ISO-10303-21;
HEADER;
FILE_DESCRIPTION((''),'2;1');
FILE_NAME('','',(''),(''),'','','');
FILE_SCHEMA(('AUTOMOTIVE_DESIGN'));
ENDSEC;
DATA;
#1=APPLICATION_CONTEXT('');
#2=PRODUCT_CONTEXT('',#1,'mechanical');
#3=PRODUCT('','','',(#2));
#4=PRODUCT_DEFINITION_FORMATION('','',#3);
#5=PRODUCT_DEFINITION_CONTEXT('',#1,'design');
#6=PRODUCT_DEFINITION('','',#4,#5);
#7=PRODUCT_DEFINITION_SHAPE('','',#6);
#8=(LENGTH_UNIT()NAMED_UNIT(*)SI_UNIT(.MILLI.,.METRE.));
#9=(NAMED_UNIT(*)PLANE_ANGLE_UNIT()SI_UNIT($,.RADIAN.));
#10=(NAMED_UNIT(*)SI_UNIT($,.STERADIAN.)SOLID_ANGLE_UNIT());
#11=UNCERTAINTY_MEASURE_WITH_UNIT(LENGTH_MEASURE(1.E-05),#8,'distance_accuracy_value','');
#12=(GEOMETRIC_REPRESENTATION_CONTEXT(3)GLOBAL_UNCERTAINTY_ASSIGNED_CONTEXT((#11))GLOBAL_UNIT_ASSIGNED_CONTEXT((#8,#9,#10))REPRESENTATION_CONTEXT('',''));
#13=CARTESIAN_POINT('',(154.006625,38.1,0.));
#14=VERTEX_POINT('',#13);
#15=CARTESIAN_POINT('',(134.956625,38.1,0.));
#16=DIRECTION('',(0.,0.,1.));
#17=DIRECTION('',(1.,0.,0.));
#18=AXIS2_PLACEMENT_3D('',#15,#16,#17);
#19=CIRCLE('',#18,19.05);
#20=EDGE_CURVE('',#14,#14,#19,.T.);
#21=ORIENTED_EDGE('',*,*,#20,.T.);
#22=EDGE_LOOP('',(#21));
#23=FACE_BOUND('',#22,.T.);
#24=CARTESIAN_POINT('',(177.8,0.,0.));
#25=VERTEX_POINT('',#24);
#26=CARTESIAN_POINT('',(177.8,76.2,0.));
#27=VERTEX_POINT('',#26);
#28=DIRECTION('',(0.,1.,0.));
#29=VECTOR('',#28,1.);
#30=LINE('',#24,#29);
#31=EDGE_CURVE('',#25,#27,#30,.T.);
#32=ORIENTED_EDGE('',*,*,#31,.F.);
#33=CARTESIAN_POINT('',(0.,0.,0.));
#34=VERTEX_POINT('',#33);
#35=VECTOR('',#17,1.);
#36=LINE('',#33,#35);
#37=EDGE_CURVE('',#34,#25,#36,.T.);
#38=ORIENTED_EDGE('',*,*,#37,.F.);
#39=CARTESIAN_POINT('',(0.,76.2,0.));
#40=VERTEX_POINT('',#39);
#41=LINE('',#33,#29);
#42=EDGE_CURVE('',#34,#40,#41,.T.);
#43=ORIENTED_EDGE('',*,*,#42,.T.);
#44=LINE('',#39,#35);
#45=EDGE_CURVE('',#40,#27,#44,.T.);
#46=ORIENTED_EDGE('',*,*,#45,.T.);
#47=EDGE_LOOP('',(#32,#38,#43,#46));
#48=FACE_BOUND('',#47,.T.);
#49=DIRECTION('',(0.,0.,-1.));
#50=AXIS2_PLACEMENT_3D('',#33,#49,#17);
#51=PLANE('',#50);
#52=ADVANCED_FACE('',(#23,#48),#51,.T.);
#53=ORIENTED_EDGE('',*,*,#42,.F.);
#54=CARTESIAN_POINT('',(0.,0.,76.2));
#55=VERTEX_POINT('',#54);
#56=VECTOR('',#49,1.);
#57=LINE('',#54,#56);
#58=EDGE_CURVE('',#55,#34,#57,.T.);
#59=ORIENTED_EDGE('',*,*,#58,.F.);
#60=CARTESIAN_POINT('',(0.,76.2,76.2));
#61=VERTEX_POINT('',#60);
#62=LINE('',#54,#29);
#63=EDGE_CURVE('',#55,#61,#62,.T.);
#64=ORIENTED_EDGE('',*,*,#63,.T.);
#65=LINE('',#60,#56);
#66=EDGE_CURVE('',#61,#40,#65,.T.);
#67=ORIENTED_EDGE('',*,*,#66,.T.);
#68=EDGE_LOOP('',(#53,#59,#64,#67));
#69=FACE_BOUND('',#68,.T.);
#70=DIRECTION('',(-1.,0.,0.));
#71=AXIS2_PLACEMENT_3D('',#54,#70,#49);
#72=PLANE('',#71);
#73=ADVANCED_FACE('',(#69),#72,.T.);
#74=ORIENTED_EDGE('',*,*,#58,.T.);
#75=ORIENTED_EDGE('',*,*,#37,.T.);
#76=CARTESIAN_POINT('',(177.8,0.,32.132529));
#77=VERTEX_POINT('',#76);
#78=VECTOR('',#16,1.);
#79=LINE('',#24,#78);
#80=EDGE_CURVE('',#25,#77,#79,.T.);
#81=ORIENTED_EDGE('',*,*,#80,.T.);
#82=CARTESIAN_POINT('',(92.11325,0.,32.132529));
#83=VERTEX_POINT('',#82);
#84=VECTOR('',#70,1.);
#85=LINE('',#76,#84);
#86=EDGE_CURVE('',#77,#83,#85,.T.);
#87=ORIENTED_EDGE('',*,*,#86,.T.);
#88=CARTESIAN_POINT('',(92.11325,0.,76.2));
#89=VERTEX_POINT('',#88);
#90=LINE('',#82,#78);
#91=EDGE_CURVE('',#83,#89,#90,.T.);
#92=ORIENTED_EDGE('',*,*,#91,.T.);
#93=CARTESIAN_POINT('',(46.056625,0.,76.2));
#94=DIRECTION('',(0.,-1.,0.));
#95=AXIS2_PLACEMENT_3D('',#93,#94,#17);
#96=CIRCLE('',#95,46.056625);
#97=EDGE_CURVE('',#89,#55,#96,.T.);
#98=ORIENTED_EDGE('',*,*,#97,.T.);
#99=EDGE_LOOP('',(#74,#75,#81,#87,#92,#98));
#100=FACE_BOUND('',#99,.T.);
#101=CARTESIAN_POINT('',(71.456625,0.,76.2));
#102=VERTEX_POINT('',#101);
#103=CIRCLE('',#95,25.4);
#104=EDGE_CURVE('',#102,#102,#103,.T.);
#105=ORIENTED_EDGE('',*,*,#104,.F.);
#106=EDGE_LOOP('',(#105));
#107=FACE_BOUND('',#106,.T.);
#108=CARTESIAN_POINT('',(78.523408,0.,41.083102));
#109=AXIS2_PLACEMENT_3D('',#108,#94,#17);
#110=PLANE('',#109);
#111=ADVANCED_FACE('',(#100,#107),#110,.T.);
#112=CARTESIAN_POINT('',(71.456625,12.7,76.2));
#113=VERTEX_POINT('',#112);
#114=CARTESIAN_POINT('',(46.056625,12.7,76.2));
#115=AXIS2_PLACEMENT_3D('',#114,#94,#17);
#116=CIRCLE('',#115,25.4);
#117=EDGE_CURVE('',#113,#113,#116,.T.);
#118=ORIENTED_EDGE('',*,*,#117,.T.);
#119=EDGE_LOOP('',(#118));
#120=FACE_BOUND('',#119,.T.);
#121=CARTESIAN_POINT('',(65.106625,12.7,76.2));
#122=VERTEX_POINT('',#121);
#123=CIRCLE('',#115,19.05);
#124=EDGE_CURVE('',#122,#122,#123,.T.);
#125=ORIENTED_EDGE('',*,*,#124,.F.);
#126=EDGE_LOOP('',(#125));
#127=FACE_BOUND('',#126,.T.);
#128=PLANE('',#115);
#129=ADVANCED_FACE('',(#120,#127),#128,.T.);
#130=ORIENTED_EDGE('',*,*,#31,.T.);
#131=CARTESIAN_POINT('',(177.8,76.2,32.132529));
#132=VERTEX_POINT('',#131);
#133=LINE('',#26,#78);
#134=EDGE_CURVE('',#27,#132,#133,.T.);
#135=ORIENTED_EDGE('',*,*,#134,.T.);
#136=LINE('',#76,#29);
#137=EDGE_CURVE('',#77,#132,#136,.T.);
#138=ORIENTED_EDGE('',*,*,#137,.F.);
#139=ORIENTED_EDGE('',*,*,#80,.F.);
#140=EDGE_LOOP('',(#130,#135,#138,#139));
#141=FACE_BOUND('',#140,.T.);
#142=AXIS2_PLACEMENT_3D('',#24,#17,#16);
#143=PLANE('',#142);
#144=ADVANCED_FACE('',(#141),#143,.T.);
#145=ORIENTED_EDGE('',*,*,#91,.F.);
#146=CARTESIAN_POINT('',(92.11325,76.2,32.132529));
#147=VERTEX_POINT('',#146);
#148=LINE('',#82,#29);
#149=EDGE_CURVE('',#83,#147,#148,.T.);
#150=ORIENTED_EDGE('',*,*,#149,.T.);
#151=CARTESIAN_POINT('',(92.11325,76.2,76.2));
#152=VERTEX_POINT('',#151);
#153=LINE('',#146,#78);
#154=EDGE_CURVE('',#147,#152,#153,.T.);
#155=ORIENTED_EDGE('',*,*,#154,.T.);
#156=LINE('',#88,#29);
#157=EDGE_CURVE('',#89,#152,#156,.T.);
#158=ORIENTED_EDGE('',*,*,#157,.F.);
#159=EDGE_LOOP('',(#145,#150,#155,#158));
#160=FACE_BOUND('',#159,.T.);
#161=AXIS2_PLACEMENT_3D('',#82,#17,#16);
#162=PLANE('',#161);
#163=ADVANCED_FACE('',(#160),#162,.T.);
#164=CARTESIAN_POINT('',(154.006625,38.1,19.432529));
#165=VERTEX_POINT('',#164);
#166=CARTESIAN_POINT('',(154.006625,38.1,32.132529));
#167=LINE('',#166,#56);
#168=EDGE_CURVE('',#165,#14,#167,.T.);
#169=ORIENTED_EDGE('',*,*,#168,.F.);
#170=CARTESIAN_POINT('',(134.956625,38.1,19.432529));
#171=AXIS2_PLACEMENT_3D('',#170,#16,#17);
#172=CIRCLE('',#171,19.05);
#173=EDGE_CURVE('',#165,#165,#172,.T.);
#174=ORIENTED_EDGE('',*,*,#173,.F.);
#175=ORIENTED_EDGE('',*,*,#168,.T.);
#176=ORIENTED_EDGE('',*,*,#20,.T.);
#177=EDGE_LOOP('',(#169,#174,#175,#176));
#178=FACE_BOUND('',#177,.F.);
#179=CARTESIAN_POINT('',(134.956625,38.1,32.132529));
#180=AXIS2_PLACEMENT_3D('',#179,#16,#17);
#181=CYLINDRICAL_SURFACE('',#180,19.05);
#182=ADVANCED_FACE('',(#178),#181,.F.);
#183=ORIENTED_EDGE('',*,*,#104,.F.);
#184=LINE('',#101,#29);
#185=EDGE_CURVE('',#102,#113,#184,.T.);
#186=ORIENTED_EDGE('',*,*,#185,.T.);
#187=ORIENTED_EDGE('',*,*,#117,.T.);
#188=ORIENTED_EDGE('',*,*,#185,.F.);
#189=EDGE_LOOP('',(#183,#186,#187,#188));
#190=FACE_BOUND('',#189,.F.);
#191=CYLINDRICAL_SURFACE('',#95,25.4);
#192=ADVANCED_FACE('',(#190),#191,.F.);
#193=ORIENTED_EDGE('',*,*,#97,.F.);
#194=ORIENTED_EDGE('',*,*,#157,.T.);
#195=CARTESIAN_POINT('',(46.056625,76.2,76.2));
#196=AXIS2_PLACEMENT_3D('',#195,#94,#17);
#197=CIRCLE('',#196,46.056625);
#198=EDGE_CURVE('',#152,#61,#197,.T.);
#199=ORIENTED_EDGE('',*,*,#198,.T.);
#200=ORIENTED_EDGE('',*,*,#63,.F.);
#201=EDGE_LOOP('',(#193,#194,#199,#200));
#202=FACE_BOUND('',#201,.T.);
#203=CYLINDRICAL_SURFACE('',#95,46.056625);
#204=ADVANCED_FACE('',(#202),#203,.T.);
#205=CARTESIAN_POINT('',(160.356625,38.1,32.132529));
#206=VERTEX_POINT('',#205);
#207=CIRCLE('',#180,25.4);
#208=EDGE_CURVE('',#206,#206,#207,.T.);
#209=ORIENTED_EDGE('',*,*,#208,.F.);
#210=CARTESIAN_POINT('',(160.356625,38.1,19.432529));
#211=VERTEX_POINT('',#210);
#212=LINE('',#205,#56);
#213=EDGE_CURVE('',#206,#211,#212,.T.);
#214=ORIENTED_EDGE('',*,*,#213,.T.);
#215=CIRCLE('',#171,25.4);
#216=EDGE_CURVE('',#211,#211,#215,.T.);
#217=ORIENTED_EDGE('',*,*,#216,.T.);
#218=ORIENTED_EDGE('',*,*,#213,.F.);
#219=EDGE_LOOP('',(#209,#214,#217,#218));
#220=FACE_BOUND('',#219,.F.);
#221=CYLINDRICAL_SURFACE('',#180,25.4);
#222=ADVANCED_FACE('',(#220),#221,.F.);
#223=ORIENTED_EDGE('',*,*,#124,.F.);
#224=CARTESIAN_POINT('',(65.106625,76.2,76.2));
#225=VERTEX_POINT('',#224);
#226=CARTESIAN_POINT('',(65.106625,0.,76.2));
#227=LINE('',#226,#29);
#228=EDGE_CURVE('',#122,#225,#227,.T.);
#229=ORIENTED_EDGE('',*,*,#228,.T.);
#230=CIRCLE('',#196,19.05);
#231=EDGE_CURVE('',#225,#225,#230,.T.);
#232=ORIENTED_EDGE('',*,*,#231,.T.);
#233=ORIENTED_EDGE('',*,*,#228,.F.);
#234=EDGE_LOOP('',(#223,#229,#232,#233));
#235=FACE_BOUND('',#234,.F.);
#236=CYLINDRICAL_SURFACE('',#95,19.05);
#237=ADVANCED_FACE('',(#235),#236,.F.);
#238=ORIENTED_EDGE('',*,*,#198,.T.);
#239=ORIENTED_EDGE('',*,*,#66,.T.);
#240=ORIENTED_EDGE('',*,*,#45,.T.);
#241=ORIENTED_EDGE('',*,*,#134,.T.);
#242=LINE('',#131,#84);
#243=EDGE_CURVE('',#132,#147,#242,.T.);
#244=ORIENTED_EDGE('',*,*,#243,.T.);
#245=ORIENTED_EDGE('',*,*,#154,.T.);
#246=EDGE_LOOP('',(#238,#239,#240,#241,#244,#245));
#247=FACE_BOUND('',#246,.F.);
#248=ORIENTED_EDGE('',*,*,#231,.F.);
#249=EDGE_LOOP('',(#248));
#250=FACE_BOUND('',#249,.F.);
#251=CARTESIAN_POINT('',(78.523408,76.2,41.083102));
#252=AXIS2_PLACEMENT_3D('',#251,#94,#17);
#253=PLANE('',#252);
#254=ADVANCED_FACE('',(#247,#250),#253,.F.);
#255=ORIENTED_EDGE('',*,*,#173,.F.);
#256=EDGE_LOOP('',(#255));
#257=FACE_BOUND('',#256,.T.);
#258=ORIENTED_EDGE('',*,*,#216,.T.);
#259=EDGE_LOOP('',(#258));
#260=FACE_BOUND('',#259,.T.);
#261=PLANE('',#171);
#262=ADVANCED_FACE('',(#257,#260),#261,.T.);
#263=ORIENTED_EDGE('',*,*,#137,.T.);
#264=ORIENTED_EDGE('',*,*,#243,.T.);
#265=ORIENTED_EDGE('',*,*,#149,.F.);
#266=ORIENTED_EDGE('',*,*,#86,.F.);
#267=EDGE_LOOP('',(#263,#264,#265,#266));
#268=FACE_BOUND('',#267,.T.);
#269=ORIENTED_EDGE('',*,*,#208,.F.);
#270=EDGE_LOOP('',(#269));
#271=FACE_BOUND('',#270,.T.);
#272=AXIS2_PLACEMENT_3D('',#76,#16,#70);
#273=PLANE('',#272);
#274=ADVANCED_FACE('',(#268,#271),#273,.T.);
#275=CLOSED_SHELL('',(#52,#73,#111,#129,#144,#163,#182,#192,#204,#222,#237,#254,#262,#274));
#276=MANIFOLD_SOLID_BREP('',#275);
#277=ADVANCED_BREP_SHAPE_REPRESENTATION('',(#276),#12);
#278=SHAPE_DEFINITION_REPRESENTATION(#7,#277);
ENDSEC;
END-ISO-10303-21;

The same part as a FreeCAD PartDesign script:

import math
import FreeCAD as App
import Part
import Sketcher
from FreeCAD import Vector
Q = App.Units.Quantity

doc = App.newDocument("Part")
body = doc.addObject("PartDesign::Body", "Body")

sketch1 = doc.addObject("Sketcher::SketchObject", "Sketch")
body.addObject(sketch1)
sketch1.AttachmentSupport = (doc.XZ_Plane, [""])
sketch1.MapMode = "FlatFace"
sketch1.addGeometry([
    Part.LineSegment(Vector(0, 76, 0), Vector(0, 0, 0)),
    Part.LineSegment(Vector(0, 0, 0), Vector(178, 0, 0)),
    Part.LineSegment(Vector(178, 0, 0), Vector(178, 32, 0)),
    Part.LineSegment(Vector(178, 32, 0), Vector(92, 32, 0)),
    Part.LineSegment(Vector(92, 32, 0), Vector(92, 76, 0)),
    Part.ArcOfCircle(Part.Circle(Vector(46, 76, 0), Vector(0, 0, 1), 46), math.radians(0), math.radians(180)),
    Part.Circle(Vector(46, 76, 0), Vector(0, 0, 1), 19),
], False)
sketch1.addConstraint([
    Sketcher.Constraint("Coincident", 0, 2, 1, 1),
    Sketcher.Constraint("Coincident", 1, 2, 2, 1),
    Sketcher.Constraint("Coincident", 2, 2, 3, 1),
    Sketcher.Constraint("Coincident", 3, 2, 4, 1),
    Sketcher.Constraint("Tangent", 4, 2, 5, 1),
    Sketcher.Constraint("Tangent", 5, 2, 0, 1),
    Sketcher.Constraint("Vertical", 0),
    Sketcher.Constraint("Horizontal", 1),
    Sketcher.Constraint("Vertical", 2),
    Sketcher.Constraint("Horizontal", 3),
    Sketcher.Constraint("Vertical", 4),
    Sketcher.Constraint("Coincident", 0, 2, -1, 1),
    Sketcher.Constraint("Coincident", 6, 3, 5, 3),
    Sketcher.Constraint("Diameter", 6, Q("1.5 in")),
    Sketcher.Constraint("DistanceX", 1, 1, 1, 2, Q("7 in")),
    Sketcher.Constraint("DistanceY", 0, 2, 0, 1, Q("3 in")),
    Sketcher.Constraint("Radius", 5, 46.056625),
    Sketcher.Constraint("DistanceY", 2, 1, 2, 2, 32.132529),
])
pad1 = doc.addObject("PartDesign::Pad", "Pad")
body.addObject(pad1)
pad1.Profile = sketch1
pad1.Length = Q("3 in")
pad1.Reversed = True

sketch2 = doc.addObject("Sketcher::SketchObject", "Sketch001")
body.addObject(sketch2)
sketch2.AttachmentSupport = (doc.XZ_Plane, [""])
sketch2.MapMode = "FlatFace"
sketch2.addGeometry([
    Part.Circle(Vector(46, 76, 0), Vector(0, 0, 1), 25),
    Part.Circle(Vector(46, 76, 0), Vector(0, 0, 1), 19),
], False)
sketch2.addConstraint([
    Sketcher.Constraint("Coincident", 1, 3, 0, 3),
    Sketcher.Constraint("Diameter", 0, Q("2 in")),
    Sketcher.Constraint("Diameter", 1, Q("1.5 in")),
    Sketcher.Constraint("DistanceY", -1, 1, 0, 3, Q("3 in")),
    Sketcher.Constraint("DistanceX", -1, 1, 0, 3, 46.056625),
])
pocket1 = doc.addObject("PartDesign::Pocket", "Pocket")
body.addObject(pocket1)
pocket1.Profile = sketch2
pocket1.Length = Q("0.5 in")

sketch3 = doc.addObject("Sketcher::SketchObject", "Sketch002")
body.addObject(sketch3)
sketch3.AttachmentSupport = (doc.XY_Plane, [""])
sketch3.MapMode = "FlatFace"
sketch3.AttachmentOffset = App.Placement(Vector(0, 0, 32.132529), App.Rotation())
sketch3.addGeometry(Part.Circle(Vector(135, 38, 0), Vector(0, 0, 1), 19), False)
sketch3.addConstraint([
    Sketcher.Constraint("Diameter", 0, Q("1.5 in")),
    Sketcher.Constraint("DistanceY", -1, 1, 0, 3, Q("1.5 in")),
    Sketcher.Constraint("DistanceX", -1, 1, 0, 3, 134.956625),
])
pocket2 = doc.addObject("PartDesign::Pocket", "Pocket001")
body.addObject(pocket2)
pocket2.Profile = sketch3
pocket2.Type = "ThroughAll"

sketch4 = doc.addObject("Sketcher::SketchObject", "Sketch003")
body.addObject(sketch4)
sketch4.AttachmentSupport = (doc.XY_Plane, [""])
sketch4.MapMode = "FlatFace"
sketch4.AttachmentOffset = App.Placement(Vector(0, 0, 32.132529), App.Rotation())
sketch4.addGeometry([
    Part.Circle(Vector(135, 38, 0), Vector(0, 0, 1), 25),
    Part.Circle(Vector(135, 38, 0), Vector(0, 0, 1), 19),
], False)
sketch4.addConstraint([
    Sketcher.Constraint("Coincident", 1, 3, 0, 3),
    Sketcher.Constraint("Diameter", 0, Q("2 in")),
    Sketcher.Constraint("Diameter", 1, Q("1.5 in")),
    Sketcher.Constraint("DistanceY", -1, 1, 0, 3, Q("1.5 in")),
    Sketcher.Constraint("DistanceX", -1, 1, 0, 3, 134.956625),
])
pocket3 = doc.addObject("PartDesign::Pocket", "Pocket002")
body.addObject(pocket3)
pocket3.Profile = sketch4
pocket3.Length = Q("0.5 in")

doc.recompute()
